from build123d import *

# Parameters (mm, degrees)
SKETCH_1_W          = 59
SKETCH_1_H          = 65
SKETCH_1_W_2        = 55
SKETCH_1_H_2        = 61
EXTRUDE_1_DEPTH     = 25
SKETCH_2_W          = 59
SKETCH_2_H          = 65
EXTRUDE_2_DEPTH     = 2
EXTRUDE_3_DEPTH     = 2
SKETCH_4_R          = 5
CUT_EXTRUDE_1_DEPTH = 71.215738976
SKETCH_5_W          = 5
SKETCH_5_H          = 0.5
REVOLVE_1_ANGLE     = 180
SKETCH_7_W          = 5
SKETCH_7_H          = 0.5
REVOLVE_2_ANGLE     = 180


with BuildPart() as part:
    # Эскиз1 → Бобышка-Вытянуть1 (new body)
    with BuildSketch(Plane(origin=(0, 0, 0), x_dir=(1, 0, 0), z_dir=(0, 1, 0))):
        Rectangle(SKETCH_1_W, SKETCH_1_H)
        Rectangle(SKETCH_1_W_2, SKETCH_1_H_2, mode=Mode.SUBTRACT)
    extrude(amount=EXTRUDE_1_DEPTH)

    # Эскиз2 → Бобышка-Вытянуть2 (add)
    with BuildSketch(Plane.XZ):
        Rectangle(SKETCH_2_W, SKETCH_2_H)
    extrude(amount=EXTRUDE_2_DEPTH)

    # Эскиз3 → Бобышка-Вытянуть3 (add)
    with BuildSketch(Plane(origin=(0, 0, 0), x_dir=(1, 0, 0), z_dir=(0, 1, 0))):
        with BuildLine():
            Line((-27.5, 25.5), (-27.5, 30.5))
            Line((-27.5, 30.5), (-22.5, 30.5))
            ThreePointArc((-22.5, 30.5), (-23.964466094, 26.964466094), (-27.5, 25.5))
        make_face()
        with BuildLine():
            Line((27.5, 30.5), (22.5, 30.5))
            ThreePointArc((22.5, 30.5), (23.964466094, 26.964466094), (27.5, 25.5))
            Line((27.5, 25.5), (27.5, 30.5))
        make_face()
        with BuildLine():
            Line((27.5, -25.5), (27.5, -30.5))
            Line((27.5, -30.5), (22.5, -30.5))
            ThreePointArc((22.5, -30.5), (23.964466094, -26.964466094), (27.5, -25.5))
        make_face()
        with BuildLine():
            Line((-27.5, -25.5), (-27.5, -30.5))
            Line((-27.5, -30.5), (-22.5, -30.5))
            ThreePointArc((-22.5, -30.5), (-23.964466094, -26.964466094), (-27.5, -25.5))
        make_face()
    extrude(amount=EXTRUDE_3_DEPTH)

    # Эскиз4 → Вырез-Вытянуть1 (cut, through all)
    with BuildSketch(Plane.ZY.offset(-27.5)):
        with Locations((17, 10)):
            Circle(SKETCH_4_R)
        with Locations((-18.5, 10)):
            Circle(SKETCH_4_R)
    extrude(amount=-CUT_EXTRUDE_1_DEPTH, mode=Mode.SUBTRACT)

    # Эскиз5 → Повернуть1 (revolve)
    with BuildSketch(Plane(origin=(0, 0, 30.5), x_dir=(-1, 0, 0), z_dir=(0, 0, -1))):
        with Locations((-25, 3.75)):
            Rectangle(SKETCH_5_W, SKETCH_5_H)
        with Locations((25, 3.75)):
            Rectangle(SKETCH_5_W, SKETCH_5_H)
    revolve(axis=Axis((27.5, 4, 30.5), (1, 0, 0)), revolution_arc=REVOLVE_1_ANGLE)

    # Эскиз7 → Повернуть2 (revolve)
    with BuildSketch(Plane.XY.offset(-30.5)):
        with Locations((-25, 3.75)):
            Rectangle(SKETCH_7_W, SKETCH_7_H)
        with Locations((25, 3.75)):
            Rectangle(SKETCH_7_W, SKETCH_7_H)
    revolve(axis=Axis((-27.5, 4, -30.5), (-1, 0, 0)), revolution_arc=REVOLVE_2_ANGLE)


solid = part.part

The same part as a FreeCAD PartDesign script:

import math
import FreeCAD as App
import Part
import Sketcher


def add_polygon(sketch, points):
    """Adds a closed chain of lines whose ends are joined by coincident constraints."""
    first, n = sketch.GeometryCount, len(points)
    for a, b in zip(points, points[1:] + points[:1]):
        sketch.addGeometry(Part.LineSegment(App.Vector(*a, 0), App.Vector(*b, 0)), False)
    for i in range(n):
        sketch.addConstraint(Sketcher.Constraint("Coincident", first + i, 2, first + (i + 1) % n, 1))

doc = App.newDocument("Part")
body = doc.addObject("PartDesign::Body", "Body")

# Sketch on XZ plane
sketch1 = body.newObject("Sketcher::SketchObject", "Sketch")
sketch1.AttachmentSupport = (doc.getObject("XZ_Plane"), [""])
sketch1.MapMode = "FlatFace"
add_polygon(sketch1, [(-30, -32), (-30, 32), (30, 32), (30, -32)])  # lines 0-3
add_polygon(sketch1, [(28, 30), (-28, 30), (-28, -30), (28, -30)])  # lines 4-7
sketch1.addConstraint([
    Sketcher.Constraint("Vertical", 0),
    Sketcher.Constraint("Horizontal", 1),
    Sketcher.Constraint("Vertical", 2),
    Sketcher.Constraint("Horizontal", 3),
    Sketcher.Constraint("Horizontal", 4),
    Sketcher.Constraint("Vertical", 5),
    Sketcher.Constraint("Horizontal", 6),
    Sketcher.Constraint("Vertical", 7),
    Sketcher.Constraint("Symmetric", 0, 2, 2, 2, -1, 1),
    Sketcher.Constraint("Symmetric", 4, 2, 6, 2, -1, 1),
    Sketcher.Constraint("DistanceX", 1, 1, 1, 2, 59.0),
    Sketcher.Constraint("DistanceX", 4, 2, 4, 1, 55.0),
    Sketcher.Constraint("DistanceY", 0, 1, 0, 2, 65.0),
    Sketcher.Constraint("DistanceY", 5, 2, 5, 1, 61.0),
])
pad1 = body.newObject("PartDesign::Pad", "Pad")
pad1.Profile = sketch1
pad1.Length = 25
pad1.Reversed = True

# Sketch on XZ plane
sketch2 = body.newObject("Sketcher::SketchObject", "Sketch001")
sketch2.AttachmentSupport = (doc.getObject("XZ_Plane"), [""])
sketch2.MapMode = "FlatFace"
add_polygon(sketch2, [(-30, 32), (-30, -32), (30, -32), (30, 32)])  # lines 0-3
sketch2.addConstraint([
    Sketcher.Constraint("Vertical", 0),
    Sketcher.Constraint("Horizontal", 1),
    Sketcher.Constraint("Vertical", 2),
    Sketcher.Constraint("Horizontal", 3),
    Sketcher.Constraint("Symmetric", 0, 2, 2, 2, -1, 1),
    Sketcher.Constraint("DistanceX", 1, 1, 1, 2, 59.0),
    Sketcher.Constraint("DistanceY", 0, 2, 0, 1, 65.0),
])
pad2 = body.newObject("PartDesign::Pad", "Pad001")
pad2.Profile = sketch2
pad2.Length = 2

# Sketch on XZ plane
sketch3 = body.newObject("Sketcher::SketchObject", "Sketch002")
sketch3.AttachmentSupport = (doc.getObject("XZ_Plane"), [""])
sketch3.MapMode = "FlatFace"
sketch3.addGeometry([
    Part.LineSegment(App.Vector(-28, -30, 0), App.Vector(-28, -26, 0)),  # 0
    Part.ArcOfCircle(Part.Circle(App.Vector(-28, -30, 0), App.Vector(0, 0, 1), 5), math.radians(0), math.radians(90)),  # 1
    Part.LineSegment(App.Vector(-22, -30, 0), App.Vector(-28, -30, 0)),  # 2
    Part.LineSegment(App.Vector(28, -30, 0), App.Vector(22, -30, 0)),  # 3
    Part.ArcOfCircle(Part.Circle(App.Vector(28, -30, 0), App.Vector(0, 0, 1), 5), math.radians(90), math.radians(180)),  # 4
    Part.LineSegment(App.Vector(28, -26, 0), App.Vector(28, -30, 0)),  # 5
    Part.LineSegment(App.Vector(28, 30, 0), App.Vector(28, 26, 0)),  # 6
    Part.ArcOfCircle(Part.Circle(App.Vector(28, 30, 0), App.Vector(0, 0, 1), 5), math.radians(180), math.radians(270)),  # 7
    Part.LineSegment(App.Vector(22, 30, 0), App.Vector(28, 30, 0)),  # 8
    Part.LineSegment(App.Vector(-28, 26, 0), App.Vector(-28, 30, 0)),  # 9
    Part.LineSegment(App.Vector(-28, 30, 0), App.Vector(-22, 30, 0)),  # 10
    Part.ArcOfCircle(Part.Circle(App.Vector(-28, 30, 0), App.Vector(0, 0, 1), 5), math.radians(-90), math.radians(0)),  # 11
], False)
sketch3.addConstraint([
    Sketcher.Constraint("Coincident", 0, 2, 1, 2),
    Sketcher.Constraint("Coincident", 1, 1, 2, 1),
    Sketcher.Constraint("Coincident", 2, 2, 0, 1),
    Sketcher.Constraint("Coincident", 3, 2, 4, 2),
    Sketcher.Constraint("Coincident", 4, 1, 5, 1),
    Sketcher.Constraint("Coincident", 5, 2, 3, 1),
    Sketcher.Constraint("Coincident", 6, 2, 7, 2),
    Sketcher.Constraint("Coincident", 7, 1, 8, 1),
    Sketcher.Constraint("Coincident", 8, 2, 6, 1),
    Sketcher.Constraint("Coincident", 9, 2, 10, 1),
    Sketcher.Constraint("Coincident", 10, 2, 11, 2),
    Sketcher.Constraint("Coincident", 11, 1, 9, 1),
    Sketcher.Constraint("Vertical", 0),
    Sketcher.Constraint("Horizontal", 2),
    Sketcher.Constraint("Horizontal", 3),
    Sketcher.Constraint("Vertical", 5),
    Sketcher.Constraint("Vertical", 6),
    Sketcher.Constraint("Horizontal", 8),
    Sketcher.Constraint("Vertical", 9),
    Sketcher.Constraint("Horizontal", 10),
    Sketcher.Constraint("Coincident", 2, 2, 1, 3),
    Sketcher.Constraint("Coincident", 5, 2, 4, 3),
    Sketcher.Constraint("Coincident", 8, 2, 7, 3),
    Sketcher.Constraint("Coincident", 9, 2, 11, 3),
    Sketcher.Constraint("Equal", 1, 4),
    Sketcher.Constraint("Equal", 4, 7),
    Sketcher.Constraint("Equal", 7, 11),
    Sketcher.Constraint("Symmetric", 1, 3, 7, 3, -1, 1),
    Sketcher.Constraint("Symmetric", 4, 3, 11, 3, -1, 1),
    Sketcher.Constraint("Symmetric", 1, 3, 4, 3, -2),
    Sketcher.Constraint("Radius", 1, 5.0),
    Sketcher.Constraint("DistanceX", 1, 3, 4, 3, 55.0),
    Sketcher.Constraint("DistanceY", 4, 3, 7, 3, 61.0),
])
pad3 = body.newObject("PartDesign::Pad", "Pad002")
pad3.Profile = sketch3
pad3.Length = 2
pad3.Reversed = True

# Sketch on YZ plane
sketch4 = body.newObject("Sketcher::SketchObject", "Sketch003")
sketch4.AttachmentSupport = (doc.getObject("YZ_Plane"), [""])
sketch4.MapMode = "FlatFace"
sketch4.AttachmentOffset = App.Placement(App.Vector(0, 0, 27.5), App.Rotation())
sketch4.addGeometry([
    Part.Circle(App.Vector(10, 17, 0), App.Vector(0, 0, 1), 5),
    Part.Circle(App.Vector(10, -18, 0), App.Vector(0, 0, 1), 5),
], False)
sketch4.addConstraint([
    Sketcher.Constraint("Equal", 0, 1),
    Sketcher.Constraint("Vertical", 0, 3, 1, 3),
    Sketcher.Constraint("Diameter", 0, 10.0),
    Sketcher.Constraint("DistanceX", -1, 1, 0, 3, 10.0),
    Sketcher.Constraint("DistanceY", -1, 1, 0, 3, 17.0),
    Sketcher.Constraint("DistanceY", 1, 3, -1, 1, 18.5),
])
pocket1 = body.newObject("PartDesign::Pocket", "Pocket")
pocket1.Profile = sketch4
pocket1.Type = "ThroughAll"
pocket1.Reversed = True

# Sketch on XY plane
sketch5 = body.newObject("Sketcher::SketchObject", "Sketch004")
sketch5.AttachmentSupport = (doc.getObject("XY_Plane"), [""])
sketch5.MapMode = "FlatFace"
sketch5.AttachmentOffset = App.Placement(App.Vector(0, 0, 30.5), App.Rotation())
add_polygon(sketch5, [(27.5, 4), (27.5, 3.5), (22.5, 3.5), (22.5, 4)])  # lines 0-3
add_polygon(sketch5, [(-22.5, 4), (-22.5, 3.5), (-27.5, 3.5), (-27.5, 4)])  # lines 4-7
sketch5.addGeometry(Part.LineSegment(App.Vector(-27.5, 4, 0), App.Vector(27.5, 4, 0)), True)  # axis
sketch5.addConstraint([
    Sketcher.Constraint("Vertical", 0),
    Sketcher.Constraint("Horizontal", 1),
    Sketcher.Constraint("Vertical", 2),
    Sketcher.Constraint("Horizontal", 3),
    Sketcher.Constraint("Vertical", 4),
    Sketcher.Constraint("Horizontal", 5),
    Sketcher.Constraint("Vertical", 6),
    Sketcher.Constraint("Horizontal", 7),
    Sketcher.Constraint("Horizontal", 8),
    Sketcher.Constraint("Coincident", 8, 1, 6, 2),
    Sketcher.Constraint("Coincident", 8, 2, 3, 2),
    Sketcher.Constraint("Symmetric", 1, 2, 4, 2, -2),
    Sketcher.Constraint("Equal", 3, 5),
    Sketcher.Constraint("DistanceX", 1, 2, 1, 1, 5.0),
    Sketcher.Constraint("DistanceX", 8, 1, 8, 2, 55.0),
    Sketcher.Constraint("DistanceY", 0, 2, 0, 1, 0.5),
    Sketcher.Constraint("DistanceY", -1, 1, 2, 2, 4.0),
])
revolution = body.newObject("PartDesign::Revolution", "Revolution")
revolution.Profile = sketch5
revolution.ReferenceAxis = (sketch5, ["Axis0"])
revolution.Angle = 180

# Sketch on XY plane
sketch6 = body.newObject("Sketcher::SketchObject", "Sketch005")
sketch6.AttachmentSupport = (doc.getObject("XY_Plane"), [""])
sketch6.MapMode = "FlatFace"
sketch6.AttachmentOffset = App.Placement(App.Vector(0, 0, -30.5), App.Rotation())
add_polygon(sketch6, [(-27.5, 4), (-27.5, 3.5), (-22.5, 3.5), (-22.5, 4)])  # lines 0-3
add_polygon(sketch6, [(22.5, 4), (22.5, 3.5), (27.5, 3.5), (27.5, 4)])  # lines 4-7
sketch6.addGeometry(Part.LineSegment(App.Vector(27.5, 4, 0), App.Vector(-27.5, 4, 0)), True)  # axis
sketch6.addConstraint([
    Sketcher.Constraint("Vertical", 0),
    Sketcher.Constraint("Horizontal", 1),
    Sketcher.Constraint("Vertical", 2),
    Sketcher.Constraint("Horizontal", 3),
    Sketcher.Constraint("Vertical", 4),
    Sketcher.Constraint("Horizontal", 5),
    Sketcher.Constraint("Vertical", 6),
    Sketcher.Constraint("Horizontal", 7),
    Sketcher.Constraint("Horizontal", 8),
    Sketcher.Constraint("Coincident", 8, 1, 6, 2),
    Sketcher.Constraint("Coincident", 8, 2, 3, 2),
    Sketcher.Constraint("Symmetric", 1, 2, 4, 2, -2),
    Sketcher.Constraint("Equal", 3, 5),
    Sketcher.Constraint("DistanceX", 1, 1, 1, 2, 5.0),
    Sketcher.Constraint("DistanceX", 8, 2, 8, 1, 55.0),
    Sketcher.Constraint("DistanceY", 0, 2, 0, 1, 0.5),
    Sketcher.Constraint("DistanceY", -1, 1, 2, 2, 4.0),
])
revolution2 = body.newObject("PartDesign::Revolution", "Revolution001")
revolution2.Profile = sketch6
revolution2.ReferenceAxis = (sketch6, ["Axis0"])
revolution2.Angle = 180

doc.recompute()
